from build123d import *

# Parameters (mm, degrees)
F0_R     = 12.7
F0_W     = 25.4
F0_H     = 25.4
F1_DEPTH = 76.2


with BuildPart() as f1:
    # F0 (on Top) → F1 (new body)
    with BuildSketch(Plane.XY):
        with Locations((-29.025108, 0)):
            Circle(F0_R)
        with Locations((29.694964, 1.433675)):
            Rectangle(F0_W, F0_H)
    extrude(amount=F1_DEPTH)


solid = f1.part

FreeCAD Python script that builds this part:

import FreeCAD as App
import Part
import Sketcher
Q = App.Units.Quantity

doc = App.newDocument("Part")
params = doc.addObject("Spreadsheet::Sheet", "Params")
for row, (alias, value) in enumerate([
    ("sketch1_diameter", "1 in"),
    ("sketch1_width", "1 in"),
    ("pad1_length", "3 in"),
], start=1):
    params.set(f"A{row}", alias)
    params.set(f"B{row}", "=" + value)
    params.setAlias(f"B{row}", alias)

body = doc.addObject("PartDesign::Body", "Body")
body.AllowCompound = True

sketch1 = doc.addObject("Sketcher::SketchObject", "Sketch")
body.addObject(sketch1)
sketch1.AttachmentSupport = (doc.XY_Plane, [""])
sketch1.MapMode = "FlatFace"
sketch1.addGeometry(Part.Circle(App.Vector(-29, 0, 0), App.Vector(0, 0, 1), 13), False)
sketch1.addGeometry(Part.LineSegment(App.Vector(17, 14, 0), App.Vector(17, -11, 0)), False)
sketch1.addGeometry(Part.LineSegment(App.Vector(17, -11, 0), App.Vector(42, -11, 0)), False)
sketch1.addGeometry(Part.LineSegment(App.Vector(42, -11, 0), App.Vector(42, 14, 0)), False)
sketch1.addGeometry(Part.LineSegment(App.Vector(42, 14, 0), App.Vector(17, 14, 0)), False)
sketch1.addConstraint(Sketcher.Constraint("Coincident", 1, 2, 2, 1))
sketch1.addConstraint(Sketcher.Constraint("Coincident", 2, 2, 3, 1))
sketch1.addConstraint(Sketcher.Constraint("Coincident", 3, 2, 4, 1))
sketch1.addConstraint(Sketcher.Constraint("Coincident", 4, 2, 1, 1))
sketch1.addConstraint(Sketcher.Constraint("Vertical", 1))
sketch1.addConstraint(Sketcher.Constraint("Horizontal", 2))
sketch1.addConstraint(Sketcher.Constraint("Vertical", 3))
sketch1.addConstraint(Sketcher.Constraint("Horizontal", 4))
sketch1.addConstraint(Sketcher.Constraint("PointOnObject", 0, 3, -1))
sketch1.addConstraint(Sketcher.Constraint("Equal", 4, 1))
sketch1.addConstraint(Sketcher.Constraint("Diameter", 0, Q("1 in")))
sketch1.addConstraint(Sketcher.Constraint("DistanceX", 2, 1, 2, 2, Q("1 in")))
sketch1.addConstraint(Sketcher.Constraint("DistanceX", 0, 3, -1, 1, 29.025108))
sketch1.addConstraint(Sketcher.Constraint("DistanceX", -1, 1, 1, 2, 16.994964))
sketch1.addConstraint(Sketcher.Constraint("DistanceY", 1, 2, -1, 1, 11.266325))
sketch1.setExpression("Constraints[10]", "Params.sketch1_diameter")
sketch1.setExpression("Constraints[11]", "Params.sketch1_width")
pad1 = doc.addObject("PartDesign::Pad", "Pad")
body.addObject(pad1)
pad1.Profile = sketch1
pad1.setExpression("Length", "Params.pad1_length")

doc.recompute()
